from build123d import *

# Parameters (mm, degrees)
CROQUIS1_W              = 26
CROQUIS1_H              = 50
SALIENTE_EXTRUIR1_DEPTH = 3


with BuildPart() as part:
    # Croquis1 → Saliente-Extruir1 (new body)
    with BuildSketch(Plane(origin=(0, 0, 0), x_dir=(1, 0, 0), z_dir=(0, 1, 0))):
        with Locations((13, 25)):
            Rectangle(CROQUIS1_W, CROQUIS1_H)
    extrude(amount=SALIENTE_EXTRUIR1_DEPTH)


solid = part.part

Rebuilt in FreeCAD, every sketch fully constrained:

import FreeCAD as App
import Part
import Sketcher

V = App.Vector


def add_polygon(sketch, points):
    """Adds a closed chain of lines whose ends are joined by coincident constraints."""
    first, n = sketch.GeometryCount, len(points)
    for a, b in zip(points, points[1:] + points[:1]):
        sketch.addGeometry(Part.LineSegment(App.Vector(*a, 0), App.Vector(*b, 0)), False)
    for i in range(n):
        sketch.addConstraint(Sketcher.Constraint("Coincident", first + i, 2, first + (i + 1) % n, 1))

doc = App.newDocument("Part")
body = doc.addObject("PartDesign::Body", "Body")

# Sketch on XZ plane
sketch1 = body.newObject("Sketcher::SketchObject", "Sketch")
sketch1.AttachmentSupport = (doc.getObject("XZ_Plane"), [""])
sketch1.MapMode = "FlatFace"
add_polygon(sketch1, [(0, -50), (0, 0), (26, 0), (26, -50)])  # lines 0-3
sketch1.addConstraint([
    Sketcher.Constraint("Vertical", 0),
    Sketcher.Constraint("Horizontal", 1),
    Sketcher.Constraint("Vertical", 2),
    Sketcher.Constraint("Horizontal", 3),
    Sketcher.Constraint("Coincident", 0, 2, -1, 1),
    Sketcher.Constraint("DistanceX", 1, 1, 1, 2, 26.0),
    Sketcher.Constraint("DistanceY", 0, 1, 0, 2, 50.0),
])
pad1 = body.newObject("PartDesign::Pad", "Pad")
pad1.Profile = sketch1
pad1.Length = 3
pad1.Reversed = True

doc.recompute()
